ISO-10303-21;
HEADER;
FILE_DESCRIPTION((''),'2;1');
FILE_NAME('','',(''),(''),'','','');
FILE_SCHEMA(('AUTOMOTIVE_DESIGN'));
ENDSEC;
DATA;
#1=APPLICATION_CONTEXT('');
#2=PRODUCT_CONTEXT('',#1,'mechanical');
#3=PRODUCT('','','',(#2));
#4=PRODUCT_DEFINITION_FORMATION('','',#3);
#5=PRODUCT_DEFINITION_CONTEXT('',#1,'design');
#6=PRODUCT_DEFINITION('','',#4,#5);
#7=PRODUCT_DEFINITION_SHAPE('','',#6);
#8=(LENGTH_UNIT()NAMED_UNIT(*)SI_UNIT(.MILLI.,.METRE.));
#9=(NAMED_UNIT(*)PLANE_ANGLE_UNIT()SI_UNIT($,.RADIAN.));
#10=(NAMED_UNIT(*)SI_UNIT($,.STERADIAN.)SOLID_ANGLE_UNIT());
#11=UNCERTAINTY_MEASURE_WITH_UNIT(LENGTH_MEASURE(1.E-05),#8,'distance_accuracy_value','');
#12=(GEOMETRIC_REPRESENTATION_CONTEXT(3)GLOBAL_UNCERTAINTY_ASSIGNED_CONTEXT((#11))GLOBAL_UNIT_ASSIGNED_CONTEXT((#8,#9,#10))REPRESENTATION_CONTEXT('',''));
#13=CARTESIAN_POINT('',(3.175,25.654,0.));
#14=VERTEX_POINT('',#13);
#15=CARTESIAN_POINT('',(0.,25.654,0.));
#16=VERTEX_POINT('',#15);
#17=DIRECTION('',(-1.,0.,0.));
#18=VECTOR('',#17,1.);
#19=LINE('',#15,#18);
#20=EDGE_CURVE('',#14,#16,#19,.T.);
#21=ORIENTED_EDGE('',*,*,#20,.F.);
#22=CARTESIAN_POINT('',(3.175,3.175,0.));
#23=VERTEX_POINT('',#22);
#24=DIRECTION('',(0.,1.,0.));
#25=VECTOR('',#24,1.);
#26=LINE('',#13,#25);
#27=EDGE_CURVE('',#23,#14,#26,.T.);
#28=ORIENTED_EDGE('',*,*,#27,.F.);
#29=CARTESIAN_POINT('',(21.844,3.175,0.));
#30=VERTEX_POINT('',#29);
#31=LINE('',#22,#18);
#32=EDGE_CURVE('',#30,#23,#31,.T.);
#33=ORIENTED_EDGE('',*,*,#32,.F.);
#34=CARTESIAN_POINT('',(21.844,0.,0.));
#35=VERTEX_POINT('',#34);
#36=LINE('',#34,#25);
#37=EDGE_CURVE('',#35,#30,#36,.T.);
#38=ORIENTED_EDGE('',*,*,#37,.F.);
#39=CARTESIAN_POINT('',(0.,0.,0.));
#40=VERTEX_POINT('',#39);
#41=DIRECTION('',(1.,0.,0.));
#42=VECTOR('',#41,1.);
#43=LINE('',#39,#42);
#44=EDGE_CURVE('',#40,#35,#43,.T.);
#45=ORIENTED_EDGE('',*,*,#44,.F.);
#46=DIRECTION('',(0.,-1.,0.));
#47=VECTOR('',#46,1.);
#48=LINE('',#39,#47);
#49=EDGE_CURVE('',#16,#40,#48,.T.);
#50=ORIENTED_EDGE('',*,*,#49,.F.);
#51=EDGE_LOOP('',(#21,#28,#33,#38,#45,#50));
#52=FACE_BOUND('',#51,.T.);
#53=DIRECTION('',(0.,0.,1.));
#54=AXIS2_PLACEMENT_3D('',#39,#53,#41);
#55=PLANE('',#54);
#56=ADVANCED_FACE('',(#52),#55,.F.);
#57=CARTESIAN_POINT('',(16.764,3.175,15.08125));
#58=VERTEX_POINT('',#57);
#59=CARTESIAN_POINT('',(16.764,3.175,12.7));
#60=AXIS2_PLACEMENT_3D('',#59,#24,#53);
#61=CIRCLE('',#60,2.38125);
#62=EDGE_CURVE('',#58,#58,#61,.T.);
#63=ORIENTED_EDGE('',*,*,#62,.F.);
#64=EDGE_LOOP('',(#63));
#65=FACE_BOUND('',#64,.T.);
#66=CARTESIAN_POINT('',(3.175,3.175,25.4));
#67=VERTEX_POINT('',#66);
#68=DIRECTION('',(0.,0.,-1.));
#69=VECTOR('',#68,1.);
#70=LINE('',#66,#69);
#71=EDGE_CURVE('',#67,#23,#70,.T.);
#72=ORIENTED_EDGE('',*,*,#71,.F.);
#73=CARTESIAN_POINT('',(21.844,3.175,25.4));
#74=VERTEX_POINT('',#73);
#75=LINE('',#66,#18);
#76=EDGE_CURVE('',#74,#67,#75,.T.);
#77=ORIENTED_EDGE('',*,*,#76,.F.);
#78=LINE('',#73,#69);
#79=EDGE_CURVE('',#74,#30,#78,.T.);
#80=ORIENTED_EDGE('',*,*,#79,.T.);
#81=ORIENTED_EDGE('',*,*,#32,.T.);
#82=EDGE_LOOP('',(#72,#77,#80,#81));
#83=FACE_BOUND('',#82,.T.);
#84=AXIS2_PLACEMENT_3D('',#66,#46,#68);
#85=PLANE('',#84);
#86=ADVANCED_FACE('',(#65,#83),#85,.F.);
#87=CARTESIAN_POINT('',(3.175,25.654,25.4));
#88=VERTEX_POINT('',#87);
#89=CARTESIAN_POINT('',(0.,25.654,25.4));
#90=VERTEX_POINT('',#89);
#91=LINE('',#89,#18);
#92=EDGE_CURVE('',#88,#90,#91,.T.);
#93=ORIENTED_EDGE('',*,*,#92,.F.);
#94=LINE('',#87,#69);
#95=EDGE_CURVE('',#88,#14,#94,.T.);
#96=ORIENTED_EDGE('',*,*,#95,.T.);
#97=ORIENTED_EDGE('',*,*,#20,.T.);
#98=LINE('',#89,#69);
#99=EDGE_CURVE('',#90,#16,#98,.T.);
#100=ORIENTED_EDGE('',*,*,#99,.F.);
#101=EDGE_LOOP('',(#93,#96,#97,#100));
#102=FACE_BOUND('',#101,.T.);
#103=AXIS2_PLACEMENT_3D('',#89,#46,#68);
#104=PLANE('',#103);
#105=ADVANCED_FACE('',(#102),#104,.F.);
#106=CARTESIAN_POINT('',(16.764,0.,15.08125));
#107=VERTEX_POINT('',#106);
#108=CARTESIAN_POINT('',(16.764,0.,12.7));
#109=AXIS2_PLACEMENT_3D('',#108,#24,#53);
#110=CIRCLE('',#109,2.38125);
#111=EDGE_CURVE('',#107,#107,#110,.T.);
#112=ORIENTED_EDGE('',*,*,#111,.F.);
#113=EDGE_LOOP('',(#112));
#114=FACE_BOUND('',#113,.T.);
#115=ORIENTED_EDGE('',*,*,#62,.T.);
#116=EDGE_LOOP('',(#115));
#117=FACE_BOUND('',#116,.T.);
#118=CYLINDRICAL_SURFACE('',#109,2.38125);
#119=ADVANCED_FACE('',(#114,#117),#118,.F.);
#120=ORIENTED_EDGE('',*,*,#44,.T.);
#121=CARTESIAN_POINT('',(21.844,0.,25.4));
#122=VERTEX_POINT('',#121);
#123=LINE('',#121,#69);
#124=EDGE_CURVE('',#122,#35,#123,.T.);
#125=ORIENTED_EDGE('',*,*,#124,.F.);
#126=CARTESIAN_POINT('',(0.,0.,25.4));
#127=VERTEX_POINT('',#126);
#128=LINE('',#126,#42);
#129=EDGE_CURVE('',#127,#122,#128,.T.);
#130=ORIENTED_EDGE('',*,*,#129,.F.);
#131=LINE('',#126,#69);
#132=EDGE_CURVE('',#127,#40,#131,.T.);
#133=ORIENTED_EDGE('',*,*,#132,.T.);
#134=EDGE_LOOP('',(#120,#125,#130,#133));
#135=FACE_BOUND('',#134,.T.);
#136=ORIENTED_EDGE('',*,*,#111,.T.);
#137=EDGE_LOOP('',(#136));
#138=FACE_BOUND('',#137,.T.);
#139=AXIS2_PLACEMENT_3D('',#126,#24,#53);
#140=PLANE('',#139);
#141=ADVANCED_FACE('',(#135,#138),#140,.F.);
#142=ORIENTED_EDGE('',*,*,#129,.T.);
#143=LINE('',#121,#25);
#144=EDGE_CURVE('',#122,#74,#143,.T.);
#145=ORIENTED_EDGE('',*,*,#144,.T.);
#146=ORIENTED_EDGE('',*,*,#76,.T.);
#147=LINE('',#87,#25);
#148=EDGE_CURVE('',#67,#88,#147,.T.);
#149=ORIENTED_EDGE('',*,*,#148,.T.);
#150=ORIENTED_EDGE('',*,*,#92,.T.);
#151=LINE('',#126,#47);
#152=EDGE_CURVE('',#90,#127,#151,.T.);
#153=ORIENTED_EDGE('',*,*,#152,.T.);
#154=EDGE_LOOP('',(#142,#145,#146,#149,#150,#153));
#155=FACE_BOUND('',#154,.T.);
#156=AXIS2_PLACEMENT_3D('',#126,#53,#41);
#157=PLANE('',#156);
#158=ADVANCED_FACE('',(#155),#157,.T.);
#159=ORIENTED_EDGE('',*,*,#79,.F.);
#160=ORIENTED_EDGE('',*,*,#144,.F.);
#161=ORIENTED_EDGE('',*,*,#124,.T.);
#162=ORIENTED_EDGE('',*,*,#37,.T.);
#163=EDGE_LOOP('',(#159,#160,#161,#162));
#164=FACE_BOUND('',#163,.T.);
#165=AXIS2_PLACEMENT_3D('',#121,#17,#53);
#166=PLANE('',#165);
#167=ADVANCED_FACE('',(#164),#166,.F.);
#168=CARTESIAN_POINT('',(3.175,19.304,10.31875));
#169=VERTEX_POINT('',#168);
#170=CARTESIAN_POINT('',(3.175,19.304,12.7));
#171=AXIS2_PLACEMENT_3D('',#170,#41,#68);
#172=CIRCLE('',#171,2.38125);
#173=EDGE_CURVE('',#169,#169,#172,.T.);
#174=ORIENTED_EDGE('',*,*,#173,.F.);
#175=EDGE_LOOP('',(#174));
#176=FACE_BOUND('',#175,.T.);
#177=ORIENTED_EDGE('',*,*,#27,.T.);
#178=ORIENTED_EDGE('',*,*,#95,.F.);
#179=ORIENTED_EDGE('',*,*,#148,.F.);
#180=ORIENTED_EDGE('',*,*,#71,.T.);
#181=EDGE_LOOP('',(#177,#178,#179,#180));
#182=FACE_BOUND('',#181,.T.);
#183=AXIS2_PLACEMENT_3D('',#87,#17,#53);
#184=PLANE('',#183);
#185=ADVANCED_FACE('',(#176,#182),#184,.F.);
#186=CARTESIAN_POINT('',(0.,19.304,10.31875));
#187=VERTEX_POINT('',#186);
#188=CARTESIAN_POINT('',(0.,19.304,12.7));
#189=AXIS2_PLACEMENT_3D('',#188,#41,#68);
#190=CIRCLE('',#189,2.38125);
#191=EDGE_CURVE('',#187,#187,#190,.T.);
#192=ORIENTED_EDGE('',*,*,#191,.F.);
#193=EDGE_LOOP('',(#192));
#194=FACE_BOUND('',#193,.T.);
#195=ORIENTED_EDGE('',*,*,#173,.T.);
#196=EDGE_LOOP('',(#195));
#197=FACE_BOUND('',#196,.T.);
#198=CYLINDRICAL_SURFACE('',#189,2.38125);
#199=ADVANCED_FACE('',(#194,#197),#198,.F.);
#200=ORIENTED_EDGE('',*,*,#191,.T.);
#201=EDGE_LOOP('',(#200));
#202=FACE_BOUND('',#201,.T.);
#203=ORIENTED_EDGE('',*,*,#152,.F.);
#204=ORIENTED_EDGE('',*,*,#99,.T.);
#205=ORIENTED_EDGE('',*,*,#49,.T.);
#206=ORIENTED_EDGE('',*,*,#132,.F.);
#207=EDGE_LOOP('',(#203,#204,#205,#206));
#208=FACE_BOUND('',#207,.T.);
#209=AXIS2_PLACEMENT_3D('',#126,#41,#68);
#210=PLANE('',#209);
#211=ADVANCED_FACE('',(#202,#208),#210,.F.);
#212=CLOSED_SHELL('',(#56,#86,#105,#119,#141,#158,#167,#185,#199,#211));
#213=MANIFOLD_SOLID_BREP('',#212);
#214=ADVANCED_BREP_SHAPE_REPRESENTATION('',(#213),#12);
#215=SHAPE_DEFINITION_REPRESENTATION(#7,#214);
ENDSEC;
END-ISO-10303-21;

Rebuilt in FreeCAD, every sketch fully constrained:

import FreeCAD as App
import Part
import Sketcher
from FreeCAD import Vector
Q = App.Units.Quantity


def add_polygon(sketch, points):
    """Adds a closed chain of lines whose ends are joined by coincident constraints."""
    first, n = sketch.GeometryCount, len(points)
    for a, b in zip(points, points[1:] + points[:1]):
        sketch.addGeometry(Part.LineSegment(App.Vector(*a, 0), App.Vector(*b, 0)), False)
    for i in range(n):
        sketch.addConstraint(Sketcher.Constraint("Coincident", first + i, 2, first + (i + 1) % n, 1))

doc = App.newDocument("Part")
body = doc.addObject("PartDesign::Body", "Body")

sketch1 = body.newObject("Sketcher::SketchObject", "Sketch")
sketch1.AttachmentSupport = (doc.getObject("XY_Plane"), [""])
sketch1.MapMode = "FlatFace"
add_polygon(sketch1, [(0, 25.7), (0, 0), (21.8, 0), (21.8, 3.2), (3.2, 3.2), (3.2, 25.7)])
sketch1.addConstraint([
    Sketcher.Constraint("Vertical", 0),
    Sketcher.Constraint("Horizontal", 1),
    Sketcher.Constraint("Vertical", 2),
    Sketcher.Constraint("Horizontal", 3),
    Sketcher.Constraint("Vertical", 4),
    Sketcher.Constraint("Horizontal", 5),
    Sketcher.Constraint("Coincident", 0, 2, -1, 1),
    Sketcher.Constraint("Equal", 5, 2),
    Sketcher.Constraint("DistanceX", 1, 1, 1, 2, Q("0.86 in")),
    Sketcher.Constraint("DistanceY", 0, 2, 0, 1, Q("1.01 in")),
    Sketcher.Constraint("DistanceX", 3, 2, 3, 1, Q("0.735 in")),
])
pad1 = body.newObject("PartDesign::Pad", "Pad")
pad1.Profile = sketch1
pad1.Length = Q("1 in")

sketch2 = body.newObject("Sketcher::SketchObject", "Sketch001")
sketch2.AttachmentSupport = (doc.getObject("YZ_Plane"), [""])
sketch2.MapMode = "FlatFace"
sketch2.AttachmentOffset = App.Placement(Vector(0, 0, 0.125 * 25.4), App.Rotation())
sketch2.addGeometry(Part.Circle(Vector(19.3, 12.7, 0), Vector(0, 0, 1), 2.4), False)
sketch2.addConstraint([
    Sketcher.Constraint("Diameter", 0, Q("0.1875 in")),
    Sketcher.Constraint("DistanceY", -1, 1, 0, 3, Q("0.5 in")),
    Sketcher.Constraint("DistanceX", -1, 1, 0, 3, Q("0.76 in")),
])
pocket1 = body.newObject("PartDesign::Pocket", "Pocket")
pocket1.Profile = sketch2
pocket1.Type = "ThroughAll"

sketch3 = body.newObject("Sketcher::SketchObject", "Sketch002")
sketch3.AttachmentSupport = (doc.getObject("XZ_Plane"), [""])
sketch3.MapMode = "FlatFace"
sketch3.AttachmentOffset = App.Placement(Vector(0, 0, -0.125 * 25.4), App.Rotation())
sketch3.addGeometry(Part.Circle(Vector(16.8, 12.7, 0), Vector(0, 0, 1), 2.4), False)
sketch3.addConstraint([
    Sketcher.Constraint("Diameter", 0, Q("0.1875 in")),
    Sketcher.Constraint("DistanceY", -1, 1, 0, 3, Q("0.5 in")),
    Sketcher.Constraint("DistanceX", -1, 1, 0, 3, Q("0.66 in")),
])
pocket2 = body.newObject("PartDesign::Pocket", "Pocket001")
pocket2.Profile = sketch3
pocket2.Type = "ThroughAll"
pocket2.Reversed = True

doc.recompute()
